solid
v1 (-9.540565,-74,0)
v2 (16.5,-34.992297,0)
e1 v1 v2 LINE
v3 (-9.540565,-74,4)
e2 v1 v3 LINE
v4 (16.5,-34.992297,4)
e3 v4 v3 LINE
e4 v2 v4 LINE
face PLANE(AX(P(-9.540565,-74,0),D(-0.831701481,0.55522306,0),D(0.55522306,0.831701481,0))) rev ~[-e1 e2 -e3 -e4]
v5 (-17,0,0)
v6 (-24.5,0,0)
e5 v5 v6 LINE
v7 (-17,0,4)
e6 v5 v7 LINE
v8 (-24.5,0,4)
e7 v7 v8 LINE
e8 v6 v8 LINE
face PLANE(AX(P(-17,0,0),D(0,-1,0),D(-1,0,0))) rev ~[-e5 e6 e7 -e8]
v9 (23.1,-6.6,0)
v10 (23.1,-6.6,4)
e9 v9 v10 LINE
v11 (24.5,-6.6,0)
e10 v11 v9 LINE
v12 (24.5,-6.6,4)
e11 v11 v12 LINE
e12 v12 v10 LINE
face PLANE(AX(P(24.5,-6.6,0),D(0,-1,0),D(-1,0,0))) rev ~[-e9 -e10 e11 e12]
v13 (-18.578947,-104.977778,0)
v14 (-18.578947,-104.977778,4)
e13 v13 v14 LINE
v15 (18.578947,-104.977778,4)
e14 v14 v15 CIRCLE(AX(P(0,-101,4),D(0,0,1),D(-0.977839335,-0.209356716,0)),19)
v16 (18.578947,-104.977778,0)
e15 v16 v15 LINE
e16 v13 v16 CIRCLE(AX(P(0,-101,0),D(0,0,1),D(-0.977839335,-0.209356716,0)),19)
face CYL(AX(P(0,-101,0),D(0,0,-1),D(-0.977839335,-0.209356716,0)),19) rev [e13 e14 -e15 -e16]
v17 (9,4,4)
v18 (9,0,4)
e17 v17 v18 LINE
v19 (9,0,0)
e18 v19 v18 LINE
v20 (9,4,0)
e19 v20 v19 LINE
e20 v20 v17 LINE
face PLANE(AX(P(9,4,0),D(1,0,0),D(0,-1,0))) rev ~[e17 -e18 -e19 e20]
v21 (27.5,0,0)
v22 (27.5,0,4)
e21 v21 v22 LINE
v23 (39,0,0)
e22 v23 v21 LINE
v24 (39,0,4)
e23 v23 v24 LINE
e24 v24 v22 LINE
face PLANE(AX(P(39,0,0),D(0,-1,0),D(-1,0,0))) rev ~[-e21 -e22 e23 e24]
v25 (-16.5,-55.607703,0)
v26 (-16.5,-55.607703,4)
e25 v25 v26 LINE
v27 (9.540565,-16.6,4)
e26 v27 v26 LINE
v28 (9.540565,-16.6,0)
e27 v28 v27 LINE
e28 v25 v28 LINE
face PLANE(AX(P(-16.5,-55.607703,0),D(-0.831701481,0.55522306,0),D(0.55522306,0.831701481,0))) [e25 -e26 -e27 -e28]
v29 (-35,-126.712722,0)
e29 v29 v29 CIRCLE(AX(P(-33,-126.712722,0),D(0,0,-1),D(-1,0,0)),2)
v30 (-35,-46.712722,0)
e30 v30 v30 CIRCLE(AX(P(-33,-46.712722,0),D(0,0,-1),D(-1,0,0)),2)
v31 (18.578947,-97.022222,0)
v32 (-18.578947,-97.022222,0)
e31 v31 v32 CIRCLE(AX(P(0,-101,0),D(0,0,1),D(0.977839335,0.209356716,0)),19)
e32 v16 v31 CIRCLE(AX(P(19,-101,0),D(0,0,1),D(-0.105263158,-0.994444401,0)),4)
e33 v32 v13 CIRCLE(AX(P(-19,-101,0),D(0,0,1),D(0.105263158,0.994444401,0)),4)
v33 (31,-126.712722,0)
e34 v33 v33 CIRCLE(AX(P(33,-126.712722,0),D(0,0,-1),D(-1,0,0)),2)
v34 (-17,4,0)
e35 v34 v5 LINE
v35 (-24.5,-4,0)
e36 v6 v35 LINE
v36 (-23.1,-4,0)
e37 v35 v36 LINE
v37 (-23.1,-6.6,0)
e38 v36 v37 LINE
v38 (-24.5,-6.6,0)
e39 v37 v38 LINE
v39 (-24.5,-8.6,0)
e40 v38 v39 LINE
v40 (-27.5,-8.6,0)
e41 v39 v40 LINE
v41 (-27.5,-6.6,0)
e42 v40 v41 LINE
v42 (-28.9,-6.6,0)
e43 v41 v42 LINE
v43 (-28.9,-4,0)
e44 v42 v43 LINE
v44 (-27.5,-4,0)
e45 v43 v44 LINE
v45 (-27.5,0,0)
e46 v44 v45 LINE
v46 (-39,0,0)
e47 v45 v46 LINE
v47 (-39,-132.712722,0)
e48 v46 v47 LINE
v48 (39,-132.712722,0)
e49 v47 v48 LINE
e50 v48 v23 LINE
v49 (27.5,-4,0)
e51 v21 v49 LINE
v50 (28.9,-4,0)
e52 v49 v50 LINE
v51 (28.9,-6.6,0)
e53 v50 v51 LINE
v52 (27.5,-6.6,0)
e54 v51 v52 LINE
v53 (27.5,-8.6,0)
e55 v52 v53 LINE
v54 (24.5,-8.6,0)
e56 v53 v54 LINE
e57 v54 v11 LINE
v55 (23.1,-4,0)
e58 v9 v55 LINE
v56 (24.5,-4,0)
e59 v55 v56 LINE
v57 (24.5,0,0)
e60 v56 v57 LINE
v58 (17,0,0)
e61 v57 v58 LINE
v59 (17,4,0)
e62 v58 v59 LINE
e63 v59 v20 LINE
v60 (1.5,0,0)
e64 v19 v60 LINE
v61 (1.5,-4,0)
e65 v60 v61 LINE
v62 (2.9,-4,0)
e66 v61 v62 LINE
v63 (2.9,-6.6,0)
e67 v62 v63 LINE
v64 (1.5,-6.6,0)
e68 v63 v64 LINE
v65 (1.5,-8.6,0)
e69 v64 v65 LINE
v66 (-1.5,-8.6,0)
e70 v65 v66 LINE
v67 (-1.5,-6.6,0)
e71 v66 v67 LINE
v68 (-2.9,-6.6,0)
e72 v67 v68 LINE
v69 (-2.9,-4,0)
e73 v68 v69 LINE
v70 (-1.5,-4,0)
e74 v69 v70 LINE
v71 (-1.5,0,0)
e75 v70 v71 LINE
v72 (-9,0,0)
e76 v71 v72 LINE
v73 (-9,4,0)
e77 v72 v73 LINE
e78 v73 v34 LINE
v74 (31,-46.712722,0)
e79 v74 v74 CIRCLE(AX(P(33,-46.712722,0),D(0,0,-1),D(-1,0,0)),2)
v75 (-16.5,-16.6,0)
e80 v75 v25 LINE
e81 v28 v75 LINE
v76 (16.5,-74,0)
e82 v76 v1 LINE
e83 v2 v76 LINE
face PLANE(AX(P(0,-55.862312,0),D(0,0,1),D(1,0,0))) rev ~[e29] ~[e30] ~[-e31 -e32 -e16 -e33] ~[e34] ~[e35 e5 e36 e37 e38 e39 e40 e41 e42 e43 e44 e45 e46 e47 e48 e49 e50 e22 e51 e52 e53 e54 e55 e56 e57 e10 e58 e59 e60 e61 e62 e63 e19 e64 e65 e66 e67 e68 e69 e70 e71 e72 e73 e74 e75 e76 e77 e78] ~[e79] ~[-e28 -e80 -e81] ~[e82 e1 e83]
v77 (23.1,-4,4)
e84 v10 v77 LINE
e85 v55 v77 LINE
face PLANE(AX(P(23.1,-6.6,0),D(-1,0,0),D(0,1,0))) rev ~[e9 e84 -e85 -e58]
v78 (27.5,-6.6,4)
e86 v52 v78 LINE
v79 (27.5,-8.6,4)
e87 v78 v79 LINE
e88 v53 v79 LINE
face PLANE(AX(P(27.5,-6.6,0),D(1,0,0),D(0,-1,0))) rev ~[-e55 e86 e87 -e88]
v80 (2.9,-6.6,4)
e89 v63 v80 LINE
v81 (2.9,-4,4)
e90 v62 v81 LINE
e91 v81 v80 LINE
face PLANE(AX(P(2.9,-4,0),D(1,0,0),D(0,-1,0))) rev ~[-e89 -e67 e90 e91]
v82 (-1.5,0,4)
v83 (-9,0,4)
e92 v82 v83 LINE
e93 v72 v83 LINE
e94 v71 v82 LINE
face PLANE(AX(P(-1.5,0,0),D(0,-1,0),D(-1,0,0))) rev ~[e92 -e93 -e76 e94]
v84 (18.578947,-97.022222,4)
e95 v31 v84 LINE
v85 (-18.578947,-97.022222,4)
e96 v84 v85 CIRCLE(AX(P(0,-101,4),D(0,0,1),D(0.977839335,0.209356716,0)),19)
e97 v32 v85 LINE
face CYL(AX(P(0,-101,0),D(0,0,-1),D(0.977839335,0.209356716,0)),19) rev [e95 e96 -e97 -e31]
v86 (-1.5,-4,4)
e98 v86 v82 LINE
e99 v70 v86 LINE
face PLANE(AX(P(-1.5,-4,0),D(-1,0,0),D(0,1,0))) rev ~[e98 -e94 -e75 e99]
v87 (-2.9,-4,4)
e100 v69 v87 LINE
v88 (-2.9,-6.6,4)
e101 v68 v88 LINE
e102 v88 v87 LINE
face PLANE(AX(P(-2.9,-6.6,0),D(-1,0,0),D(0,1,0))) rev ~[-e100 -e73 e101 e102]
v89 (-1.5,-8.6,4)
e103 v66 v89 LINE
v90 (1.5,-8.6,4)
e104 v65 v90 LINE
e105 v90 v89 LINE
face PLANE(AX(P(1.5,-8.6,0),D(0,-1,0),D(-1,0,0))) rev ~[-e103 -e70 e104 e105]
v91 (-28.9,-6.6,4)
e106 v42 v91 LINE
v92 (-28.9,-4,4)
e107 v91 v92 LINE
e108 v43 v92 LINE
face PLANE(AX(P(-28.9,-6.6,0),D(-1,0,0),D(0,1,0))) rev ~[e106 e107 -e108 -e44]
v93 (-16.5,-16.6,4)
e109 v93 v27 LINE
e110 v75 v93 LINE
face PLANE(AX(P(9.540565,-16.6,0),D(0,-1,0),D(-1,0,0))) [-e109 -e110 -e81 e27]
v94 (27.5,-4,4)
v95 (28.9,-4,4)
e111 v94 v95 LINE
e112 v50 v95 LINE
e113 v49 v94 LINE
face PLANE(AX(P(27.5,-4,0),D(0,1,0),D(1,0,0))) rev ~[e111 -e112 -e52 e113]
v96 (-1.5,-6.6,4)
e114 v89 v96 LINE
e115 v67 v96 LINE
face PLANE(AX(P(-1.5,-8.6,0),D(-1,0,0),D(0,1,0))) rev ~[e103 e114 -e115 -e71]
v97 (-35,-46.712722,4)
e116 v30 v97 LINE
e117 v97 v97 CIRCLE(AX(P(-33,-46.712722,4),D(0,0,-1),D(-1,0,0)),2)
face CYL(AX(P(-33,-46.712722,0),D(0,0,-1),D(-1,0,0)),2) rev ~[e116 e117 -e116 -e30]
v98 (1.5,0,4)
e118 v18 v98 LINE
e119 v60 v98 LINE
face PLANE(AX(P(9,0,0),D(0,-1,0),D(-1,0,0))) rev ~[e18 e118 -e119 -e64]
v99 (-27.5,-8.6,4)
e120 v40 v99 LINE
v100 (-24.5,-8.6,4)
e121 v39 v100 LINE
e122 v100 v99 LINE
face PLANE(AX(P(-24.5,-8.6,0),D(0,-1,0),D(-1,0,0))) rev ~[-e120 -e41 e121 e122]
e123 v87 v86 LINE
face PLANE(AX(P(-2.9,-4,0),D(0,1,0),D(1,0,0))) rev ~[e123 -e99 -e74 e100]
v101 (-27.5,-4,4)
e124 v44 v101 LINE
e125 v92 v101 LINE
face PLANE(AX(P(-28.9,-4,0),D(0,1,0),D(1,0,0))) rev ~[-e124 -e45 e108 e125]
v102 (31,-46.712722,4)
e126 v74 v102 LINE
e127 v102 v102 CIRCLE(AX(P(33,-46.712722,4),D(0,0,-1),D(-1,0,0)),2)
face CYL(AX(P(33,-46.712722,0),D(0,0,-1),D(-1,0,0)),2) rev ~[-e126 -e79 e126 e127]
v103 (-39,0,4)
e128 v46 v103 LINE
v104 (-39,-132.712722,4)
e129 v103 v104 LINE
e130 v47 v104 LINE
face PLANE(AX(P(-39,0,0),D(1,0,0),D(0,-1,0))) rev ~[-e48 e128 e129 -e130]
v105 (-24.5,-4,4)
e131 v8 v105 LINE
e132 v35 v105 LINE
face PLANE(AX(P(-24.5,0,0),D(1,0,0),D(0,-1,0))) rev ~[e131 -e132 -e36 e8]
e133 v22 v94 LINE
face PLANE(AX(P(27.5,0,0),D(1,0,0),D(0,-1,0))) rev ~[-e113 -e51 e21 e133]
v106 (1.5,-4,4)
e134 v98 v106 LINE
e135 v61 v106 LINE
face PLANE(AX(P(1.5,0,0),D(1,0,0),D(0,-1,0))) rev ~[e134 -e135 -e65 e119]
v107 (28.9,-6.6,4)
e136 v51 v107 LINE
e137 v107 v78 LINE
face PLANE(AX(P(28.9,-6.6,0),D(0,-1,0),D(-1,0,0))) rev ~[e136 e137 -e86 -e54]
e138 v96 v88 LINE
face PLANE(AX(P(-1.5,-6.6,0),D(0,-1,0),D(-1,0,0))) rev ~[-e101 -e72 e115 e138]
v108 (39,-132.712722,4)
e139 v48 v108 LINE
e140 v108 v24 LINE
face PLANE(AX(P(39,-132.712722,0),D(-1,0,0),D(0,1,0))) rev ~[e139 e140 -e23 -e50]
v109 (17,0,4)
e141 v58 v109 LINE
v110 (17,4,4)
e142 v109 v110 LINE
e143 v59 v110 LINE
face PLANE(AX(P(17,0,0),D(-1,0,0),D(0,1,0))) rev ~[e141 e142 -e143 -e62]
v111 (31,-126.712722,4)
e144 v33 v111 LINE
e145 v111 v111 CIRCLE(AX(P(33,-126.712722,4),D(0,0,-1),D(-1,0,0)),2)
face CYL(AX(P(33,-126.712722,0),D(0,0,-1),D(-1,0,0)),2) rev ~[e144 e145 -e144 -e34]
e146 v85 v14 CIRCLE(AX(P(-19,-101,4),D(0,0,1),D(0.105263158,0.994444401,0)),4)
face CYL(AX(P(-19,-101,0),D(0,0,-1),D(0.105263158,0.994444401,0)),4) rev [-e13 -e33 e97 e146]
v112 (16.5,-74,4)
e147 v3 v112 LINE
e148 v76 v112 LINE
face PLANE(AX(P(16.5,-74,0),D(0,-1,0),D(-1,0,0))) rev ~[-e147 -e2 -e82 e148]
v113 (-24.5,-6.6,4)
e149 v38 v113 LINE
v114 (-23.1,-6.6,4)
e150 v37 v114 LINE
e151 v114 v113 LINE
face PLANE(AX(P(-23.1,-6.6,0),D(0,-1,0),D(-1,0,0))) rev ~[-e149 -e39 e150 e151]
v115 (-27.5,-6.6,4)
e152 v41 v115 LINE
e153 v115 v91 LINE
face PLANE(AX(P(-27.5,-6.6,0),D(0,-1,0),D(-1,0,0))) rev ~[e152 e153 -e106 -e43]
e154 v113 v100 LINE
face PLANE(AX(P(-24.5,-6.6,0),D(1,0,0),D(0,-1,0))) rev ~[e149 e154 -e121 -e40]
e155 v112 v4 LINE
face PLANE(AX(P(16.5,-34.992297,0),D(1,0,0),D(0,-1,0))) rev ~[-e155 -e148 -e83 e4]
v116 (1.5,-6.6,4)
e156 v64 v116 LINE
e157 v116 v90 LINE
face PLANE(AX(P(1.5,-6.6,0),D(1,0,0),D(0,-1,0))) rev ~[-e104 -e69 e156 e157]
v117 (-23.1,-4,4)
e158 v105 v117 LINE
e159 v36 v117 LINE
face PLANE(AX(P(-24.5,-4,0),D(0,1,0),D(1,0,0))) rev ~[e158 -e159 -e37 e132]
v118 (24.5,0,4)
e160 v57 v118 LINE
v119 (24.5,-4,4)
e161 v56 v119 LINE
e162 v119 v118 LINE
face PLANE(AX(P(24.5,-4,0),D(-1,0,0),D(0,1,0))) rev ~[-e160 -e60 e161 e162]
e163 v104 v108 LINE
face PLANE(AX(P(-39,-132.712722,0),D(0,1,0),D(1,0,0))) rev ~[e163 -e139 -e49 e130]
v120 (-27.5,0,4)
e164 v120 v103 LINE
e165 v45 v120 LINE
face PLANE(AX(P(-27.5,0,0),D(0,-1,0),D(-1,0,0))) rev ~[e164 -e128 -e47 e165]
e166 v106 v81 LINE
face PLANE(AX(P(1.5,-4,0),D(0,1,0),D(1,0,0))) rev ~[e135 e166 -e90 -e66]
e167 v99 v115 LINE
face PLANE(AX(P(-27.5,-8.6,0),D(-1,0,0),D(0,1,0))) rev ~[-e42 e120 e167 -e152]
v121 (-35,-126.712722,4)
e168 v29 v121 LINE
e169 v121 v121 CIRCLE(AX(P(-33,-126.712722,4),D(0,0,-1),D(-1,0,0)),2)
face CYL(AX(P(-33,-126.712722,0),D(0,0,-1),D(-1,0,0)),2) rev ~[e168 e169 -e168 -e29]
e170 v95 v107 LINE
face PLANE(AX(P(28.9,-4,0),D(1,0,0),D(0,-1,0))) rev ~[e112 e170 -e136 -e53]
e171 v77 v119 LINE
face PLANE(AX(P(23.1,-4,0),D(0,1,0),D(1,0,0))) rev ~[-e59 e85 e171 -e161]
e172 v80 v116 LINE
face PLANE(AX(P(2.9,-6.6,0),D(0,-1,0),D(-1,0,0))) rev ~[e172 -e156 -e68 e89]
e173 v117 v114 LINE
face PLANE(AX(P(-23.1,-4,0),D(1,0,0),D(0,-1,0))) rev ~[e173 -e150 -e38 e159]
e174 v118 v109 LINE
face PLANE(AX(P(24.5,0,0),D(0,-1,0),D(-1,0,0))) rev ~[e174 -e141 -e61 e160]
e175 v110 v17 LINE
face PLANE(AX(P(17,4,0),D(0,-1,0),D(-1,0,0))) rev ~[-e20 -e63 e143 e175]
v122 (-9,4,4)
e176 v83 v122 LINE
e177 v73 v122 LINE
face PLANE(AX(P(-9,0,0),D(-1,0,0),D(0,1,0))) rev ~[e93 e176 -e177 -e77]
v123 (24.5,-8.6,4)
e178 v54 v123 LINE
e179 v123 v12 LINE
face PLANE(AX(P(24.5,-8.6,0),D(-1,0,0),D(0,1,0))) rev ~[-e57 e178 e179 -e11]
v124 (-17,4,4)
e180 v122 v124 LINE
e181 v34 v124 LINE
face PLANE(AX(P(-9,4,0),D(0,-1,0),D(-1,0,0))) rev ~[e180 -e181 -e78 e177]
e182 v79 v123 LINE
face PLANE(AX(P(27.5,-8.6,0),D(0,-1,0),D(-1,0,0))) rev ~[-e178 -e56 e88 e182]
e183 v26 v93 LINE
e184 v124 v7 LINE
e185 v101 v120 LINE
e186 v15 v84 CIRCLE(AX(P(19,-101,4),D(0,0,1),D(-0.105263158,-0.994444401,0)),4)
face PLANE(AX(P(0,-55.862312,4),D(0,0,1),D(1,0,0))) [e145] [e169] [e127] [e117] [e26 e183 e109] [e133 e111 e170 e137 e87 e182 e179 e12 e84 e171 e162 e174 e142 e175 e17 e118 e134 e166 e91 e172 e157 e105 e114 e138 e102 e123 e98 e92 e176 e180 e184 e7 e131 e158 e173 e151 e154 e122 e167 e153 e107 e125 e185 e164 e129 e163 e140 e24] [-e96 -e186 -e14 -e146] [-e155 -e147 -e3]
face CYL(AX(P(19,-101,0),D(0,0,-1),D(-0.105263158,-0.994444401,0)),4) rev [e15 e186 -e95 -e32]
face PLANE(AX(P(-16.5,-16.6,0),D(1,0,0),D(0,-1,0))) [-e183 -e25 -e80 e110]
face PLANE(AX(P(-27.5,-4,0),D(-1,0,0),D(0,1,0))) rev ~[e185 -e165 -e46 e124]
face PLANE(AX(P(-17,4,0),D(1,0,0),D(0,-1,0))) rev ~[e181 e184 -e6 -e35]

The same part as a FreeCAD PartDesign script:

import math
import FreeCAD as App
import Part
import Sketcher
from FreeCAD import Vector
Q = App.Units.Quantity


def add_polygon(sketch, points):
    """Adds a closed chain of lines whose ends are joined by coincident constraints."""
    first, n = sketch.GeometryCount, len(points)
    for a, b in zip(points, points[1:] + points[:1]):
        sketch.addGeometry(Part.LineSegment(App.Vector(*a, 0), App.Vector(*b, 0)), False)
    for i in range(n):
        sketch.addConstraint(Sketcher.Constraint("Coincident", first + i, 2, first + (i + 1) % n, 1))

doc = App.newDocument("Part")
body = doc.addObject("PartDesign::Body", "Body")

sketch1 = body.newObject("Sketcher::SketchObject", "Sketch")
sketch1.AttachmentSupport = (doc.getObject("XY_Plane"), [""])
sketch1.MapMode = "FlatFace"
add_polygon(sketch1, [(1.5, 0), (1.5, -4), (2.9, -4), (2.9, -6.6), (1.5, -6.6), (1.5, -8.6), (-1.5, -8.6), (-1.5, -6.6), (-2.9, -6.6), (-2.9, -4), (-1.5, -4), (-1.5, 0), (-9, 0), (-9, 4), (-17, 4), (-17, 0), (-24.5, 0), (-24.5, -4), (-23.1, -4), (-23.1, -6.6), (-24.5, -6.6), (-24.5, -8.6), (-27.5, -8.6), (-27.5, -6.6), (-28.9, -6.6), (-28.9, -4), (-27.5, -4), (-27.5, 0), (-39, 0), (-39, -132.7), (39, -132.7), (39, 0), (27.5, 0), (27.5, -4), (28.9, -4), (28.9, -6.6), (27.5, -6.6), (27.5, -8.6), (24.5, -8.6), (24.5, -6.6), (23.1, -6.6), (23.1, -4), (24.5, -4), (24.5, 0), (17, 0), (17, 4), (9, 4), (9, 0)])
sketch1.addGeometry(Part.ArcOfCircle(Part.Circle(Vector(0, -101, 0), Vector(0, 0, 1), 19), math.radians(12), math.radians(168)), False)
sketch1.addGeometry(Part.ArcOfCircle(Part.Circle(Vector(19, -101, 0), Vector(0, 0, 1), 4), math.radians(-96), math.radians(96)), False)
sketch1.addGeometry(Part.ArcOfCircle(Part.Circle(Vector(0, -101, 0), Vector(0, 0, 1), 19), math.radians(-168), math.radians(-12)), False)
sketch1.addGeometry(Part.ArcOfCircle(Part.Circle(Vector(-19, -101, 0), Vector(0, 0, 1), 4), math.radians(84), math.radians(276)), False)
sketch1.addConstraint([
    Sketcher.Constraint("Coincident", 48, 1, 49, 2),
    Sketcher.Constraint("Coincident", 49, 1, 50, 2),
    Sketcher.Constraint("Coincident", 50, 1, 51, 2),
    Sketcher.Constraint("Coincident", 51, 1, 48, 2),
    Sketcher.Constraint("Vertical", 0),
    Sketcher.Constraint("Horizontal", 1),
    Sketcher.Constraint("Vertical", 2),
    Sketcher.Constraint("Horizontal", 3),
    Sketcher.Constraint("Vertical", 4),
    Sketcher.Constraint("Horizontal", 5),
    Sketcher.Constraint("Vertical", 6),
    Sketcher.Constraint("Horizontal", 7),
    Sketcher.Constraint("Vertical", 8),
    Sketcher.Constraint("Horizontal", 9),
    Sketcher.Constraint("Vertical", 10),
    Sketcher.Constraint("Horizontal", 11),
    Sketcher.Constraint("Vertical", 12),
    Sketcher.Constraint("Horizontal", 13),
    Sketcher.Constraint("Vertical", 14),
    Sketcher.Constraint("Horizontal", 15),
    Sketcher.Constraint("Vertical", 16),
    Sketcher.Constraint("Horizontal", 17),
    Sketcher.Constraint("Vertical", 18),
    Sketcher.Constraint("Horizontal", 19),
    Sketcher.Constraint("Vertical", 20),
    Sketcher.Constraint("Horizontal", 21),
    Sketcher.Constraint("Vertical", 22),
    Sketcher.Constraint("Horizontal", 23),
    Sketcher.Constraint("Vertical", 24),
    Sketcher.Constraint("Horizontal", 25),
    Sketcher.Constraint("Vertical", 26),
    Sketcher.Constraint("Horizontal", 27),
    Sketcher.Constraint("Vertical", 28),
    Sketcher.Constraint("Horizontal", 29),
    Sketcher.Constraint("Vertical", 30),
    Sketcher.Constraint("Horizontal", 31),
    Sketcher.Constraint("Vertical", 32),
    Sketcher.Constraint("Horizontal", 33),
    Sketcher.Constraint("Vertical", 34),
    Sketcher.Constraint("Horizontal", 35),
    Sketcher.Constraint("Vertical", 36),
    Sketcher.Constraint("Horizontal", 37),
    Sketcher.Constraint("Vertical", 38),
    Sketcher.Constraint("Horizontal", 39),
    Sketcher.Constraint("Vertical", 40),
    Sketcher.Constraint("Horizontal", 41),
    Sketcher.Constraint("Vertical", 42),
    Sketcher.Constraint("Horizontal", 43),
    Sketcher.Constraint("Vertical", 44),
    Sketcher.Constraint("Horizontal", 45),
    Sketcher.Constraint("Vertical", 46),
    Sketcher.Constraint("Horizontal", 47),
    Sketcher.Constraint("Coincident", 50, 3, 48, 3),
    Sketcher.Constraint("Equal", 48, 50),
    Sketcher.Constraint("Equal", 49, 51),
    Sketcher.Constraint("Symmetric", 27, 2, 30, 2, -1, 1),
    Sketcher.Constraint("Symmetric", 15, 2, 42, 2, -1, 1),
    Sketcher.Constraint("Symmetric", 11, 2, 46, 2, -1, 1),
    Sketcher.Constraint("Symmetric", 49, 3, 51, 3, -2),
    Sketcher.Constraint("Symmetric", 3, 2, 6, 2, -2),
    Sketcher.Constraint("Symmetric", 1, 2, 8, 2, -2),
    Sketcher.Constraint("Symmetric", 26, 2, 31, 2, -2),
    Sketcher.Constraint("Symmetric", 24, 2, 33, 2, -2),
    Sketcher.Constraint("Symmetric", 22, 2, 35, 2, -2),
    Sketcher.Constraint("Symmetric", 20, 2, 37, 2, -2),
    Sketcher.Constraint("Symmetric", 18, 2, 39, 2, -2),
    Sketcher.Constraint("Symmetric", 14, 2, 43, 2, -2),
    Sketcher.Constraint("Symmetric", 10, 2, 47, 2, -2),
    Sketcher.Constraint("PointOnObject", 48, 3, -2),
    Sketcher.Constraint("Horizontal", 48, 3, 49, 3),
    Sketcher.Constraint("Horizontal", 9, 2, 16, 2),
    Sketcher.Constraint("Horizontal", 7, 2, 18, 2),
    Sketcher.Constraint("Horizontal", 5, 2, 20, 2),
    Sketcher.Constraint("Horizontal", 19, 2, 22, 2),
    Sketcher.Constraint("Horizontal", 17, 2, 24, 2),
    Sketcher.Constraint("Horizontal", 33, 2, 40, 2),
    Sketcher.Constraint("Horizontal", 13, 2, 44, 2),
    Sketcher.Constraint("Vertical", 0, 2, 3, 2),
    Sketcher.Constraint("Vertical", 16, 2, 19, 2),
    Sketcher.Constraint("Vertical", 22, 2, 25, 2),
    Sketcher.Constraint("Equal", 11, 15),
    Sketcher.Constraint("Equal", 9, 17),
    Sketcher.Constraint("Equal", 5, 21),
    Sketcher.Constraint("Equal", 19, 23),
    Sketcher.Constraint("Equal", 10, 12),
    Sketcher.Constraint("Radius", 48, Q("19 mm")),
    Sketcher.Constraint("Radius", 49, Q("4 mm")),
    Sketcher.Constraint("DistanceX", 5, 2, 5, 1, Q("3 mm")),
    Sketcher.Constraint("DistanceX", 13, 2, 13, 1, Q("8 mm")),
    Sketcher.Constraint("DistanceX", 29, 1, 29, 2, Q("78 mm")),
    Sketcher.Constraint("DistanceY", 0, 2, 0, 1, Q("4 mm")),
    Sketcher.Constraint("DistanceY", 4, 2, 4, 1, Q("2 mm")),
    Sketcher.Constraint("DistanceX", 1, 1, 1, 2, Q("1.4 mm")),
    Sketcher.Constraint("DistanceX", 11, 2, 11, 1, Q("7.5 mm")),
    Sketcher.Constraint("DistanceY", 2, 2, 2, 1, Q("2.6 mm")),
    Sketcher.Constraint("DistanceY", 48, 3, -1, 1, Q("101 mm")),
    Sketcher.Constraint("DistanceX", -1, 1, 49, 3, Q("19 mm")),
    Sketcher.Constraint("DistanceY", 28, 2, 28, 1, Q("132.712722 mm")),
])
pad1 = body.newObject("PartDesign::Pad", "Pad")
pad1.Profile = sketch1
pad1.Length = 4

sketch2 = body.newObject("Sketcher::SketchObject", "Sketch001")
sketch2.AttachmentSupport = (doc.getObject("XY_Plane"), [""])
sketch2.MapMode = "FlatFace"
sketch2.addGeometry([
    Part.Circle(Vector(-33, -126.7, 0), Vector(0, 0, 1), 2),
    Part.Circle(Vector(-33, -46.7, 0), Vector(0, 0, 1), 2),
    Part.Circle(Vector(33, -46.7, 0), Vector(0, 0, 1), 2),
    Part.Circle(Vector(33, -126.7, 0), Vector(0, 0, 1), 2),
], False)
sketch2.addConstraint([
    Sketcher.Constraint("Equal", 0, 1),
    Sketcher.Constraint("Equal", 1, 2),
    Sketcher.Constraint("Equal", 2, 3),
    Sketcher.Constraint("Symmetric", 1, 3, 2, 3, -2),
    Sketcher.Constraint("Symmetric", 0, 3, 3, 3, -2),
    Sketcher.Constraint("Vertical", 0, 3, 1, 3),
    Sketcher.Constraint("Diameter", 0, Q("4 mm")),
    Sketcher.Constraint("DistanceX", 0, 3, -1, 1, Q("33 mm")),
    Sketcher.Constraint("DistanceY", 0, 3, 1, 3, Q("80 mm")),
    Sketcher.Constraint("DistanceY", 0, 3, -1, 1, Q("126.712722 mm")),
])
pocket1 = body.newObject("PartDesign::Pocket", "Pocket")
pocket1.Profile = sketch2
pocket1.Length = 10
pocket1.Reversed = True

sketch3 = body.newObject("Sketcher::SketchObject", "Sketch002")
sketch3.AttachmentSupport = (doc.getObject("XY_Plane"), [""])
sketch3.MapMode = "FlatFace"
add_polygon(sketch3, [(-16, -56), (-16, -17), (10, -17)])
add_polygon(sketch3, [(-10, -74), (16, -35), (16, -74)])
sketch3.addConstraint([
    Sketcher.Constraint("Vertical", 0),
    Sketcher.Constraint("Horizontal", 1),
    Sketcher.Constraint("Vertical", 4),
    Sketcher.Constraint("Horizontal", 5),
    Sketcher.Constraint("Parallel", 2, 3),
    Sketcher.Constraint("Equal", 1, 5),
    Sketcher.Constraint("DistanceY", 4, 2, -1, 1, Q("74 mm")),
    Sketcher.Constraint("DistanceX", 0, 2, 3, 2, Q("33 mm")),
    Sketcher.Constraint("DistanceX", 0, 2, -1, 1, Q("16.5 mm")),
    Sketcher.Constraint("DistanceY", 0, 2, -1, 1, Q("16.6 mm")),
    Sketcher.Constraint("DistanceX", 1, 1, 1, 2, Q("26.040565 mm")),
    Sketcher.Constraint("DistanceY", 0, 1, 0, 2, Q("39.007703 mm")),
])
pocket2 = body.newObject("PartDesign::Pocket", "Pocket001")
pocket2.Profile = sketch3
pocket2.Length = 10
pocket2.Reversed = True

doc.recompute()
